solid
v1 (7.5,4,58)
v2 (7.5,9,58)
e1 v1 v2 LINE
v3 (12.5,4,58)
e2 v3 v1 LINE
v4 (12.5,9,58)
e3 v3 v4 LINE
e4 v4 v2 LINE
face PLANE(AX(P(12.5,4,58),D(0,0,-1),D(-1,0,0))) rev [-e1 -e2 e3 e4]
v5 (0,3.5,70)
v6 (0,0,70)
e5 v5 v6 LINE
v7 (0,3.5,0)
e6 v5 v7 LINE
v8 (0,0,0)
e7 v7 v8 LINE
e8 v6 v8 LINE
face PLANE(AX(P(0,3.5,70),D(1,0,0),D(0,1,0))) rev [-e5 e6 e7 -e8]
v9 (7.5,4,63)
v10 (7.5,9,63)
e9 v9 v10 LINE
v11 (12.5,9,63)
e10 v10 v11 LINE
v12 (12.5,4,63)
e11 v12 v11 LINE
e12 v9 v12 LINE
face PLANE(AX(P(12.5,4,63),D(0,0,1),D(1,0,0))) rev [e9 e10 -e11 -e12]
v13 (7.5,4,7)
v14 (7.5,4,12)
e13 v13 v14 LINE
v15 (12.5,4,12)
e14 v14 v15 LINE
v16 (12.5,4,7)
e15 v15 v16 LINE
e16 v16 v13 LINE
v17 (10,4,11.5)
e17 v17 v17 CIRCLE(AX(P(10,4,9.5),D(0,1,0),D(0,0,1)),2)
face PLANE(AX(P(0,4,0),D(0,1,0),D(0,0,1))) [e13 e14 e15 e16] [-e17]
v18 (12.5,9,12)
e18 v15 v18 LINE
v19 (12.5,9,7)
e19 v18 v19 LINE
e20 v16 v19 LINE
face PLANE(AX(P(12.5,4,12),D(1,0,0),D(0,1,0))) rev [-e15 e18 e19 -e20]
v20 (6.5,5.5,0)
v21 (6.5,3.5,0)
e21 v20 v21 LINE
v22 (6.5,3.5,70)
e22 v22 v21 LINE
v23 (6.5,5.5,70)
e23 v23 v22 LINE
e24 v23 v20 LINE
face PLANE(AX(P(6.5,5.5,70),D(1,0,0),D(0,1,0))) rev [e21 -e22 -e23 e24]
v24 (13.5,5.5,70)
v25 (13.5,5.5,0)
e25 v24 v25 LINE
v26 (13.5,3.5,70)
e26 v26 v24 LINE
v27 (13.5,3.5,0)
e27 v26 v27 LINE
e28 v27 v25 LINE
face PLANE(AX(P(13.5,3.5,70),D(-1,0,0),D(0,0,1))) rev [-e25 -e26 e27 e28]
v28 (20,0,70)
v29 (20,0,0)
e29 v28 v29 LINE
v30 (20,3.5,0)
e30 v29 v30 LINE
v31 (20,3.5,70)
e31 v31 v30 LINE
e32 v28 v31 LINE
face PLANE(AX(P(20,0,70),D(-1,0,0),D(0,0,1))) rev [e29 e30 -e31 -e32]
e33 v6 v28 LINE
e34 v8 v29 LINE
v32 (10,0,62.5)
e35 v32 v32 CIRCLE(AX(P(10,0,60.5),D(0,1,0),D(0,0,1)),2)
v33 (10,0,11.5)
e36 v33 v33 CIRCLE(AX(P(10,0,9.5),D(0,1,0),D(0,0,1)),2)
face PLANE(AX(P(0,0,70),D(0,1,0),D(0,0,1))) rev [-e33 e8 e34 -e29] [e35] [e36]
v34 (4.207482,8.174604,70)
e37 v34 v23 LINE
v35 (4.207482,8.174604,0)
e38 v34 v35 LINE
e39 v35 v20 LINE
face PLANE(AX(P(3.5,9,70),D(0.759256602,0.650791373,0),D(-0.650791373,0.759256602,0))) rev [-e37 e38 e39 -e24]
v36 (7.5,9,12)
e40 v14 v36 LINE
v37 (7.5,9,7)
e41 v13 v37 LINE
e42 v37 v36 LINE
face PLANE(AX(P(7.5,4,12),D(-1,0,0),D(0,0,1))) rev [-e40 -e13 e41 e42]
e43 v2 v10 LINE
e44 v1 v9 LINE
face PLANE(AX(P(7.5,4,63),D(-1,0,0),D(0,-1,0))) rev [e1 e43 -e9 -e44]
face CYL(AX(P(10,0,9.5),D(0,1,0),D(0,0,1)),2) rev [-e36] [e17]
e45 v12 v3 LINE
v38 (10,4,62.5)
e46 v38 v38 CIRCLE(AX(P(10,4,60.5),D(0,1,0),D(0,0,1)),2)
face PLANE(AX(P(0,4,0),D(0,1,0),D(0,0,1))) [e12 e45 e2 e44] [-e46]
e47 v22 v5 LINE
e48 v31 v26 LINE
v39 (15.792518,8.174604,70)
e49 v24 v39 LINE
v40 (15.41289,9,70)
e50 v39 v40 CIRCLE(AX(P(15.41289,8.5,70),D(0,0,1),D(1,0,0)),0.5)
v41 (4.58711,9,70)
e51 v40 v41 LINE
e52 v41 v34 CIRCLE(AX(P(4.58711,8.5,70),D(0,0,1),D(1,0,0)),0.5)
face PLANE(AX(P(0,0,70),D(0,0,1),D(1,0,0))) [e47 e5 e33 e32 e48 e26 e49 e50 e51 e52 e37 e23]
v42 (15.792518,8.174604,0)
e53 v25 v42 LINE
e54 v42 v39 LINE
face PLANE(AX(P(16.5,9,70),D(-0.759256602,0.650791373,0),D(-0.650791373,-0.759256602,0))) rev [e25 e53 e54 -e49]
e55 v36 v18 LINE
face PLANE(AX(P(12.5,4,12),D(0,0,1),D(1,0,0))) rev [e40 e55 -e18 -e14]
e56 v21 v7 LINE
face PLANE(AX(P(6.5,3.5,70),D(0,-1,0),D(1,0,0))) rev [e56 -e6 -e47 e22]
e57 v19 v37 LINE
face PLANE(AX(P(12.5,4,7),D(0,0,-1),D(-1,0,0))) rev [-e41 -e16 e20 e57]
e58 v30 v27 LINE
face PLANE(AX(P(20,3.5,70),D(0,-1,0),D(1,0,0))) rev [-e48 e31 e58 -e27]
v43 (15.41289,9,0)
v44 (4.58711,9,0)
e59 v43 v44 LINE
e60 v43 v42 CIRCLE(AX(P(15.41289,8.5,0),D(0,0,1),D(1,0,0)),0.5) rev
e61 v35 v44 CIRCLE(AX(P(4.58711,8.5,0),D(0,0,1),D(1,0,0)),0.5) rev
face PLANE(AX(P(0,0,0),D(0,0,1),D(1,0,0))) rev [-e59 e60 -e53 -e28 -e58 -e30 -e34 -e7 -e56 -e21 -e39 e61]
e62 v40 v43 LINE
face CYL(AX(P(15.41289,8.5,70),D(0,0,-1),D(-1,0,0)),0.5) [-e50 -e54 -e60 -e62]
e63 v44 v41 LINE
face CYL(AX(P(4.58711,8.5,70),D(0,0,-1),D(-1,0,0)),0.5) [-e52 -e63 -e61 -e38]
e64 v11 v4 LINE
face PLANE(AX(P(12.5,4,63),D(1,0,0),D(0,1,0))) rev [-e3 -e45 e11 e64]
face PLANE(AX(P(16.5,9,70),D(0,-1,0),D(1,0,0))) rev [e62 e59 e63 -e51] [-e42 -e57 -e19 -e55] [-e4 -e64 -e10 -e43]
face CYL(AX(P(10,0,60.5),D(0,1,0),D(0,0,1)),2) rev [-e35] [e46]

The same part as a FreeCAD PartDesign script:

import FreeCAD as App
import Part
import Sketcher

V = App.Vector


def edges_at(feature, points):
    """Names of the edges that pass closest to the given points."""
    edges = feature.Shape.Edges
    near = lambda p: min(range(len(edges)), key=lambda i: edges[i].distToShape(Part.Vertex(*p))[0])
    return sorted({f"Edge{near(p) + 1}" for p in points})


def add_polygon(sketch, points):
    """Adds a closed chain of lines whose ends are joined by coincident constraints."""
    first, n = sketch.GeometryCount, len(points)
    for a, b in zip(points, points[1:] + points[:1]):
        sketch.addGeometry(Part.LineSegment(App.Vector(*a, 0), App.Vector(*b, 0)), False)
    for i in range(n):
        sketch.addConstraint(Sketcher.Constraint("Coincident", first + i, 2, first + (i + 1) % n, 1))

doc = App.newDocument("Part")
body = doc.addObject("PartDesign::Body", "Body")

sketch1 = body.newObject("Sketcher::SketchObject", "Sketch")
sketch1.AttachmentSupport = (doc.getObject("XY_Plane"), [""])
sketch1.MapMode = "FlatFace"
add_polygon(sketch1, [(0, 0), (20, 0), (20, 3.5), (13.5, 3.5), (13.5, 5.5), (16.5, 9), (3.5, 9), (6.5, 5.5), (6.5, 3.5), (0, 3.5)])
sketch1.addConstraint(Sketcher.Constraint("Horizontal", 0))
sketch1.addConstraint(Sketcher.Constraint("Vertical", 1))
sketch1.addConstraint(Sketcher.Constraint("Horizontal", 2))
sketch1.addConstraint(Sketcher.Constraint("Vertical", 3))
sketch1.addConstraint(Sketcher.Constraint("Horizontal", 5))
sketch1.addConstraint(Sketcher.Constraint("Vertical", 7))
sketch1.addConstraint(Sketcher.Constraint("Horizontal", 8))
sketch1.addConstraint(Sketcher.Constraint("Vertical", 9))
sketch1.addConstraint(Sketcher.Constraint("Coincident", 9, 2, -1, 1))
sketch1.addConstraint(Sketcher.Constraint("Horizontal", 3, 2, 6, 2))
sketch1.addConstraint(Sketcher.Constraint("Horizontal", 2, 2, 7, 2))
sketch1.addConstraint(Sketcher.Constraint("Equal", 2, 8))
sketch1.addConstraint(Sketcher.Constraint("Equal", 4, 6))
sketch1.addConstraint(Sketcher.Constraint("DistanceX", 0, 1, 0, 2, 20.0))
sketch1.addConstraint(Sketcher.Constraint("DistanceX", 5, 2, 5, 1, 13.0))
sketch1.addConstraint(Sketcher.Constraint("DistanceY", 3, 1, 3, 2, 2.0))
sketch1.addConstraint(Sketcher.Constraint("DistanceX", 2, 2, 2, 1, 6.5))
sketch1.addConstraint(Sketcher.Constraint("DistanceY", 1, 1, 1, 2, 3.5))
sketch1.addConstraint(Sketcher.Constraint("DistanceY", -1, 1, 4, 2, 9.0))
pad1 = body.newObject("PartDesign::Pad", "Pad")
pad1.Profile = sketch1
pad1.Length = 70
doc.recompute()

fillet = body.newObject("PartDesign::Fillet", "Fillet")
fillet.Base = (pad1, edges_at(pad1, [(16.5, 9, 35)]))
fillet.Radius = 0.5
doc.recompute()

fillet2 = body.newObject("PartDesign::Fillet", "Fillet001")
fillet2.Base = (fillet, edges_at(fillet, [(3.5, 9, 35)]))
fillet2.Radius = 0.5

sketch2 = body.newObject("Sketcher::SketchObject", "Sketch001")
sketch2.AttachmentSupport = (doc.getObject("XZ_Plane"), [""])
sketch2.MapMode = "FlatFace"
sketch2.AttachmentOffset = App.Placement(V(0, 0, -9), App.Rotation())
add_polygon(sketch2, [(8, 7), (8, 12), (12, 12), (12, 7)])
add_polygon(sketch2, [(8, 58), (8, 63), (12, 63), (12, 58)])
sketch2.addConstraint(Sketcher.Constraint("Vertical", 0))
sketch2.addConstraint(Sketcher.Constraint("Horizontal", 1))
sketch2.addConstraint(Sketcher.Constraint("Vertical", 2))
sketch2.addConstraint(Sketcher.Constraint("Horizontal", 3))
sketch2.addConstraint(Sketcher.Constraint("Vertical", 4))
sketch2.addConstraint(Sketcher.Constraint("Horizontal", 5))
sketch2.addConstraint(Sketcher.Constraint("Vertical", 6))
sketch2.addConstraint(Sketcher.Constraint("Horizontal", 7))
sketch2.addConstraint(Sketcher.Constraint("Vertical", 3, 2, 4, 2))
sketch2.addConstraint(Sketcher.Constraint("Vertical", 2, 2, 5, 2))
sketch2.addConstraint(Sketcher.Constraint("Equal", 7, 0))
sketch2.addConstraint(Sketcher.Constraint("Equal", 2, 4))
sketch2.addConstraint(Sketcher.Constraint("DistanceX", 1, 1, 1, 2, 5.0))
sketch2.addConstraint(Sketcher.Constraint("DistanceY", -1, 1, 0, 2, 12.0))
sketch2.addConstraint(Sketcher.Constraint("DistanceY", -1, 1, 4, 2, 63.0))
sketch2.addConstraint(Sketcher.Constraint("DistanceX", -1, 1, 0, 2, 7.5))
pocket1 = body.newObject("PartDesign::Pocket", "Pocket")
pocket1.Profile = sketch2
pocket1.Length = 5
pocket1.Reversed = True

sketch3 = body.newObject("Sketcher::SketchObject", "Sketch002")
sketch3.AttachmentSupport = (doc.getObject("XZ_Plane"), [""])
sketch3.MapMode = "FlatFace"
sketch3.AttachmentOffset = App.Placement(V(0, 0, -4), App.Rotation())
sketch3.addGeometry(Part.Circle(V(10, 9.5, 0), V(0, 0, 1), 2), False)
sketch3.addGeometry(Part.Circle(V(10, 60.5, 0), V(0, 0, 1), 2), False)
sketch3.addConstraint(Sketcher.Constraint("Equal", 0, 1))
sketch3.addConstraint(Sketcher.Constraint("Vertical", 0, 3, 1, 3))
sketch3.addConstraint(Sketcher.Constraint("Diameter", 0, 4.0))
sketch3.addConstraint(Sketcher.Constraint("DistanceX", -1, 1, 0, 3, 10.0))
sketch3.addConstraint(Sketcher.Constraint("DistanceY", 0, 3, 1, 3, 51.0))
sketch3.addConstraint(Sketcher.Constraint("DistanceY", -1, 1, 0, 3, 9.5))
pocket2 = body.newObject("PartDesign::Pocket", "Pocket001")
pocket2.Profile = sketch3
pocket2.Type = "ThroughAll"
pocket2.Reversed = True

doc.recompute()
